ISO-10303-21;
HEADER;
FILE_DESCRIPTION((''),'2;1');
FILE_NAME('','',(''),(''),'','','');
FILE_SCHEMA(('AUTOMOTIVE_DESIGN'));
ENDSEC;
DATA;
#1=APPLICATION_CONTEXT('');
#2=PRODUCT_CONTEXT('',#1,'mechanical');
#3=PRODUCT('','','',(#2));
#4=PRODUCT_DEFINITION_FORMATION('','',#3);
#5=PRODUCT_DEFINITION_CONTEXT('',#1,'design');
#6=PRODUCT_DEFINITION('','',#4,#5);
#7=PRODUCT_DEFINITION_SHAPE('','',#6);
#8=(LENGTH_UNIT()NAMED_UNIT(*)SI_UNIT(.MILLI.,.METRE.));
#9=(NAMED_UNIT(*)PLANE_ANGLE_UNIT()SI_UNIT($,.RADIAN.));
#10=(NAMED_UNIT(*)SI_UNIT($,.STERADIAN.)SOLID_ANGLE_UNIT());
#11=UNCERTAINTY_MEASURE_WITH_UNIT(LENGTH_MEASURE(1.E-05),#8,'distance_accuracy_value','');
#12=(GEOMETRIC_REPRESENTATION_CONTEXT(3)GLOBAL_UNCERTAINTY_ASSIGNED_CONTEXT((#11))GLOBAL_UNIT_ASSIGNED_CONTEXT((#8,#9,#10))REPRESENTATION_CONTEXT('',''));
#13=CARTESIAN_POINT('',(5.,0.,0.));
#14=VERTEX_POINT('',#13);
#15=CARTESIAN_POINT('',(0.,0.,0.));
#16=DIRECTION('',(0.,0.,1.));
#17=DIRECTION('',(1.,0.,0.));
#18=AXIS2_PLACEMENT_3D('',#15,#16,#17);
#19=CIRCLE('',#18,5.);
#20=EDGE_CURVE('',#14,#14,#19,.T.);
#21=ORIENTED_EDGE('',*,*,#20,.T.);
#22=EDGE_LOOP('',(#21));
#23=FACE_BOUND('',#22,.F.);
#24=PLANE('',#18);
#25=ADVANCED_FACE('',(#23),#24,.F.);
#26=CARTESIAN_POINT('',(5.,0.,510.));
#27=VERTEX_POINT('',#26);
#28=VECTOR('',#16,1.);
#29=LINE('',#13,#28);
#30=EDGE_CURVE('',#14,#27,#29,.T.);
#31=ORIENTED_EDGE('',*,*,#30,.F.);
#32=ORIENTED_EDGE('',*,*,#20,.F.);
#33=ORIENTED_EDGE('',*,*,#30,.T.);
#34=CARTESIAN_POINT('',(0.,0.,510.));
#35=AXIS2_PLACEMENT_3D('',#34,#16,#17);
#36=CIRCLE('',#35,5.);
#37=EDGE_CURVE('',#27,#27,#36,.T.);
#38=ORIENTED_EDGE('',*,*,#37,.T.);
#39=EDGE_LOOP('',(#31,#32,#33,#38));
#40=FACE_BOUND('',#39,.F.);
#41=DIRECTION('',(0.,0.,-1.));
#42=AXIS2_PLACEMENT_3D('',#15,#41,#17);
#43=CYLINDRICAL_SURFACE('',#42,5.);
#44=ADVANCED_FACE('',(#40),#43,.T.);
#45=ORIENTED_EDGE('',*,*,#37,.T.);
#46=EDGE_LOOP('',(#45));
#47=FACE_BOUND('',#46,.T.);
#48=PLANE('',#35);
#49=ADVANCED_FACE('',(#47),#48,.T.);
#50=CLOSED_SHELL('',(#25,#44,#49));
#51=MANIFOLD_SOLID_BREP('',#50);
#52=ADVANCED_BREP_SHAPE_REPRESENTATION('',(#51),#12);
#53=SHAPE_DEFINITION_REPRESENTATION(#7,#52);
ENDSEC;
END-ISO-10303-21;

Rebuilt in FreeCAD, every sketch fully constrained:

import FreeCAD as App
import Part
import Sketcher

V = App.Vector

doc = App.newDocument("Part")
body = doc.addObject("PartDesign::Body", "Body")

# Sketch on XY plane
sketch1 = doc.addObject("Sketcher::SketchObject", "Sketch")
body.addObject(sketch1)
sketch1.AttachmentSupport = (doc.XY_Plane, [""])
sketch1.MapMode = "FlatFace"
sketch1.addGeometry(Part.Circle(V(0, 0, 0), V(0, 0, 1), 5), False)
sketch1.addConstraint([
    Sketcher.Constraint("Coincident", 0, 3, -1, 1),
    Sketcher.Constraint("Diameter", 0, 10.0),
])
pad1 = doc.addObject("PartDesign::Pad", "Pad")
body.addObject(pad1)
pad1.Profile = sketch1
pad1.Length = 510

doc.recompute()
